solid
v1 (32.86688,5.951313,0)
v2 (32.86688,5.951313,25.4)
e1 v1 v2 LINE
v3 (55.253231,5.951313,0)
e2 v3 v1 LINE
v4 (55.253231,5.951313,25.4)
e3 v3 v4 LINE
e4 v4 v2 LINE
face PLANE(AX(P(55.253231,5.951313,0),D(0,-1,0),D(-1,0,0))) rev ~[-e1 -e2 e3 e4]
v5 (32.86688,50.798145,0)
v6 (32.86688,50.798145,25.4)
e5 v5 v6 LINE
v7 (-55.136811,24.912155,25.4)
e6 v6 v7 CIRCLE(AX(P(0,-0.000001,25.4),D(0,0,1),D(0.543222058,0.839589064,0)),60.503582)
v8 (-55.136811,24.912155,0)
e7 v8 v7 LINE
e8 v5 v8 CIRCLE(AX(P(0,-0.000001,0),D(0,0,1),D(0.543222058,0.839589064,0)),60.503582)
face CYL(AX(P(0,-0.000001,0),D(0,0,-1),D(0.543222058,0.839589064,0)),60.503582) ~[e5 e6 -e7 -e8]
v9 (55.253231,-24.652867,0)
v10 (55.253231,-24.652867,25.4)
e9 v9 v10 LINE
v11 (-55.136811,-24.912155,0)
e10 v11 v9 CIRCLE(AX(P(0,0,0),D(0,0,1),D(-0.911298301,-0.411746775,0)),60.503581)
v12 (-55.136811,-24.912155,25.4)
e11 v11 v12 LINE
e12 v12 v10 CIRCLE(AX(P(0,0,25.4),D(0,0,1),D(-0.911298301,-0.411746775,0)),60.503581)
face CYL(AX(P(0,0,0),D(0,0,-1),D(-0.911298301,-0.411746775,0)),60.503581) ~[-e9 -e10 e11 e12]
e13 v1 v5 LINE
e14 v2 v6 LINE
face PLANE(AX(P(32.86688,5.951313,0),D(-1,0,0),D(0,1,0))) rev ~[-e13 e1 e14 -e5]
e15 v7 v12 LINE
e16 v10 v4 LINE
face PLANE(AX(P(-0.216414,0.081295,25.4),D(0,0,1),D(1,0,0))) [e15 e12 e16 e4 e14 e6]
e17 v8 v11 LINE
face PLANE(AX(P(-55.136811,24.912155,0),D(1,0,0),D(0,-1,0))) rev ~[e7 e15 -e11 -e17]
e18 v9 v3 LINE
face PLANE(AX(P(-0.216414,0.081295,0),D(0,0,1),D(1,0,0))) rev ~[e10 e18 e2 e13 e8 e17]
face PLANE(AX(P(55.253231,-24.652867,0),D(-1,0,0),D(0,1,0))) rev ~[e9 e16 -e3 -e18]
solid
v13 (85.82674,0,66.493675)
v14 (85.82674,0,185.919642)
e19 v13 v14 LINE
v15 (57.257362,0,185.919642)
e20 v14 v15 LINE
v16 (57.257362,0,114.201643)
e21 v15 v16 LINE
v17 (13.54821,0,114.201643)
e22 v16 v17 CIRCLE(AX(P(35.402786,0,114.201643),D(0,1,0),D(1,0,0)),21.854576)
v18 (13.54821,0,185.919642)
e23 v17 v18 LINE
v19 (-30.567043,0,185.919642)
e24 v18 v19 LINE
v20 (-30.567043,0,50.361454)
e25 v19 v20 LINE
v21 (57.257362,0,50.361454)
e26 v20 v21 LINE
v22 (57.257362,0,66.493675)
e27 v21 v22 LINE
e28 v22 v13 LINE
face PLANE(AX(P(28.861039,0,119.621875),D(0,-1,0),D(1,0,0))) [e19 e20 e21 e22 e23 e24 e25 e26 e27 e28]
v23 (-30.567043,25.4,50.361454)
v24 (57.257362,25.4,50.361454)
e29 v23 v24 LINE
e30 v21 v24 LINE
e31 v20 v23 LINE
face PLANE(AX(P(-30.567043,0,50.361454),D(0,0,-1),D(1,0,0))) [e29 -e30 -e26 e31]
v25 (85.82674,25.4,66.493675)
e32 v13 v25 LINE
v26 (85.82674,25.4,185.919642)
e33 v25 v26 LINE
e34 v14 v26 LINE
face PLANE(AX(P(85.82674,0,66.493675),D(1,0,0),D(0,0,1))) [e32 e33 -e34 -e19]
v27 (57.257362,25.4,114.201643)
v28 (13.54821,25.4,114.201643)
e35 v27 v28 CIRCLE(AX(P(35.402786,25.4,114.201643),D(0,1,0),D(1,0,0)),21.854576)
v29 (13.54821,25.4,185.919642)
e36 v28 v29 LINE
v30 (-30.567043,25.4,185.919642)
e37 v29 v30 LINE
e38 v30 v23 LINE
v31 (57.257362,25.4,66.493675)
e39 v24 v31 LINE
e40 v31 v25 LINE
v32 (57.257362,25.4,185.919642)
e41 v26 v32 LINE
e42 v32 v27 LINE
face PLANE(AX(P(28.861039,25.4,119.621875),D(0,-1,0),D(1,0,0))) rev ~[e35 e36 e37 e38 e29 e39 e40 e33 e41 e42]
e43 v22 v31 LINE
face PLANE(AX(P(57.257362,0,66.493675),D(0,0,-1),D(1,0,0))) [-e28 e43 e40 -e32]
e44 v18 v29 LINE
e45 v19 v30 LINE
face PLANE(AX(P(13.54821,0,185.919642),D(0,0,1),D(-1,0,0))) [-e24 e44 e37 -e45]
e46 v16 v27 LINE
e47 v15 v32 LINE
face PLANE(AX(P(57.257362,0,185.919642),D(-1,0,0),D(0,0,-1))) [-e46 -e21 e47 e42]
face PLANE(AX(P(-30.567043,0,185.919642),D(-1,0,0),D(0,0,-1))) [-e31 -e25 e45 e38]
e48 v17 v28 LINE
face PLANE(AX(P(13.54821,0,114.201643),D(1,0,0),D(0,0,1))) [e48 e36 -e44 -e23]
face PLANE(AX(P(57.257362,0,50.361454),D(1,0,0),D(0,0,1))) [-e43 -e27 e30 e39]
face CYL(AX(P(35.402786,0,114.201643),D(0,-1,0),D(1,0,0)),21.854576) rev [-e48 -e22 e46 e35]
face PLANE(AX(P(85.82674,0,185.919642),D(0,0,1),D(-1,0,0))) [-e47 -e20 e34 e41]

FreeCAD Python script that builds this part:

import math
import FreeCAD as App
import Part
import Sketcher
Q = App.Units.Quantity

doc = App.newDocument("Part")
body = doc.addObject("PartDesign::Body", "Body")

sketch1 = body.newObject("Sketcher::SketchObject", "Sketch")
sketch1.AttachmentSupport = (doc.getObject("XY_Plane"), [""])
sketch1.MapMode = "FlatFace"
sketch1.addGeometry(Part.LineSegment(App.Vector(32.86688, 5.951313, 0), App.Vector(32.86688, 50.798145, 0)), False)
sketch1.addGeometry(Part.ArcOfCircle(Part.Circle(App.Vector(0, -0.000001, 0), App.Vector(0, 0, 1), 60.503582), math.radians(57.096751), math.radians(155.685387)), False)
sketch1.addGeometry(Part.LineSegment(App.Vector(-55.136811, 24.912155, 0), App.Vector(-55.136811, -24.912155, 0)), False)
sketch1.addGeometry(Part.ArcOfCircle(Part.Circle(App.Vector(0, 0, 0), App.Vector(0, 0, 1), 60.503581), math.radians(-155.685388), math.radians(-24.045456)), False)
sketch1.addGeometry(Part.LineSegment(App.Vector(55.253231, -24.652867, 0), App.Vector(55.253231, 5.951313, 0)), False)
sketch1.addGeometry(Part.LineSegment(App.Vector(55.253231, 5.951313, 0), App.Vector(32.86688, 5.951313, 0)), False)
sketch1.addConstraint(Sketcher.Constraint("Coincident", 0, 2, 1, 1))
sketch1.addConstraint(Sketcher.Constraint("Coincident", 1, 2, 2, 1))
sketch1.addConstraint(Sketcher.Constraint("Coincident", 2, 2, 3, 1))
sketch1.addConstraint(Sketcher.Constraint("Coincident", 3, 2, 4, 1))
sketch1.addConstraint(Sketcher.Constraint("Coincident", 4, 2, 5, 1))
sketch1.addConstraint(Sketcher.Constraint("Coincident", 5, 2, 0, 1))
sketch1.addConstraint(Sketcher.Constraint("Vertical", 0))
sketch1.addConstraint(Sketcher.Constraint("Vertical", 2))
sketch1.addConstraint(Sketcher.Constraint("Vertical", 4))
sketch1.addConstraint(Sketcher.Constraint("Horizontal", 5))
sketch1.addConstraint(Sketcher.Constraint("Coincident", 1, 3, -1, 1))
sketch1.addConstraint(Sketcher.Constraint("Coincident", 3, 3, -1, 1))
sketch1.addConstraint(Sketcher.Constraint("Equal", 1, 3))
sketch1.addConstraint(Sketcher.Constraint("Radius", 1, 60.503582))
sketch1.addConstraint(Sketcher.Constraint("DistanceX", 5, 2, 5, 1, 22.386351))
sketch1.addConstraint(Sketcher.Constraint("DistanceY", 2, 2, 2, 1, 49.82431))
sketch1.addConstraint(Sketcher.Constraint("DistanceY", 4, 1, 4, 2, 30.60418))
sketch1.addConstraint(Sketcher.Constraint("DistanceY", 2, 2, 0, 2, 75.7103))
pad1 = body.newObject("PartDesign::Pad", "Pad")
pad1.Profile = sketch1
pad1.Length = Q("1 in")
body2 = doc.addObject("PartDesign::Body", "Body001")

sketch2 = body2.newObject("Sketcher::SketchObject", "Sketch001")
sketch2.AttachmentSupport = (doc.getObject("XZ_Plane001"), [""])
sketch2.MapMode = "FlatFace"
sketch2.addGeometry(Part.LineSegment(App.Vector(-30.567043, 185.919642, 0), App.Vector(-30.567043, 50.361454, 0)), False)
sketch2.addGeometry(Part.LineSegment(App.Vector(-30.567043, 50.361454, 0), App.Vector(57.257362, 50.361454, 0)), False)
sketch2.addGeometry(Part.LineSegment(App.Vector(57.257362, 50.361454, 0), App.Vector(57.257362, 66.493675, 0)), False)
sketch2.addGeometry(Part.LineSegment(App.Vector(57.257362, 66.493675, 0), App.Vector(85.82674, 66.493675, 0)), False)
sketch2.addGeometry(Part.LineSegment(App.Vector(85.82674, 66.493675, 0), App.Vector(85.82674, 185.919642, 0)), False)
sketch2.addGeometry(Part.LineSegment(App.Vector(85.82674, 185.919642, 0), App.Vector(57.257362, 185.919642, 0)), False)
sketch2.addGeometry(Part.LineSegment(App.Vector(57.257362, 185.919642, 0), App.Vector(57.257362, 114.201643, 0)), False)
sketch2.addGeometry(Part.ArcOfCircle(Part.Circle(App.Vector(35.402786, 114.201643, 0), App.Vector(0, 0, 1), 21.854576), math.radians(180), math.radians(360)), False)
sketch2.addGeometry(Part.LineSegment(App.Vector(13.54821, 114.201643, 0), App.Vector(13.54821, 185.919642, 0)), False)
sketch2.addGeometry(Part.LineSegment(App.Vector(13.54821, 185.919642, 0), App.Vector(-30.567043, 185.919642, 0)), False)
sketch2.addConstraint(Sketcher.Constraint("Coincident", 0, 2, 1, 1))
sketch2.addConstraint(Sketcher.Constraint("Coincident", 1, 2, 2, 1))
sketch2.addConstraint(Sketcher.Constraint("Coincident", 2, 2, 3, 1))
sketch2.addConstraint(Sketcher.Constraint("Coincident", 3, 2, 4, 1))
sketch2.addConstraint(Sketcher.Constraint("Coincident", 4, 2, 5, 1))
sketch2.addConstraint(Sketcher.Constraint("Coincident", 5, 2, 6, 1))
sketch2.addConstraint(Sketcher.Constraint("Tangent", 6, 2, 7, 2))
sketch2.addConstraint(Sketcher.Constraint("Tangent", 7, 1, 8, 1))
sketch2.addConstraint(Sketcher.Constraint("Coincident", 8, 2, 9, 1))
sketch2.addConstraint(Sketcher.Constraint("Coincident", 9, 2, 0, 1))
sketch2.addConstraint(Sketcher.Constraint("Vertical", 0))
sketch2.addConstraint(Sketcher.Constraint("Horizontal", 1))
sketch2.addConstraint(Sketcher.Constraint("Vertical", 2))
sketch2.addConstraint(Sketcher.Constraint("Horizontal", 3))
sketch2.addConstraint(Sketcher.Constraint("Vertical", 4))
sketch2.addConstraint(Sketcher.Constraint("Horizontal", 5))
sketch2.addConstraint(Sketcher.Constraint("Vertical", 6))
sketch2.addConstraint(Sketcher.Constraint("Vertical", 8))
sketch2.addConstraint(Sketcher.Constraint("Horizontal", 9))
sketch2.addConstraint(Sketcher.Constraint("Horizontal", 5, 2, 8, 2))
sketch2.addConstraint(Sketcher.Constraint("Vertical", 2, 2, 5, 2))
sketch2.addConstraint(Sketcher.Constraint("DistanceY", 6, 2, 6, 1, 71.717999))
sketch2.addConstraint(Sketcher.Constraint("Radius", 7, 21.854576))
sketch2.addConstraint(Sketcher.Constraint("DistanceX", 3, 1, 3, 2, 28.569378))
sketch2.addConstraint(Sketcher.Constraint("DistanceY", 0, 2, 0, 1, 135.558188))
sketch2.addConstraint(Sketcher.Constraint("DistanceY", 2, 1, 2, 2, 16.132221))
sketch2.addConstraint(Sketcher.Constraint("DistanceX", 1, 1, 1, 2, 87.824405))
sketch2.addConstraint(Sketcher.Constraint("DistanceX", -1, 1, 3, 2, 85.82674))
sketch2.addConstraint(Sketcher.Constraint("DistanceY", -1, 1, 7, 3, 114.201643))
pad2 = body2.newObject("PartDesign::Pad", "Pad001")
pad2.Profile = sketch2
pad2.Length = Q("1 in")
pad2.Reversed = True

doc.recompute()
